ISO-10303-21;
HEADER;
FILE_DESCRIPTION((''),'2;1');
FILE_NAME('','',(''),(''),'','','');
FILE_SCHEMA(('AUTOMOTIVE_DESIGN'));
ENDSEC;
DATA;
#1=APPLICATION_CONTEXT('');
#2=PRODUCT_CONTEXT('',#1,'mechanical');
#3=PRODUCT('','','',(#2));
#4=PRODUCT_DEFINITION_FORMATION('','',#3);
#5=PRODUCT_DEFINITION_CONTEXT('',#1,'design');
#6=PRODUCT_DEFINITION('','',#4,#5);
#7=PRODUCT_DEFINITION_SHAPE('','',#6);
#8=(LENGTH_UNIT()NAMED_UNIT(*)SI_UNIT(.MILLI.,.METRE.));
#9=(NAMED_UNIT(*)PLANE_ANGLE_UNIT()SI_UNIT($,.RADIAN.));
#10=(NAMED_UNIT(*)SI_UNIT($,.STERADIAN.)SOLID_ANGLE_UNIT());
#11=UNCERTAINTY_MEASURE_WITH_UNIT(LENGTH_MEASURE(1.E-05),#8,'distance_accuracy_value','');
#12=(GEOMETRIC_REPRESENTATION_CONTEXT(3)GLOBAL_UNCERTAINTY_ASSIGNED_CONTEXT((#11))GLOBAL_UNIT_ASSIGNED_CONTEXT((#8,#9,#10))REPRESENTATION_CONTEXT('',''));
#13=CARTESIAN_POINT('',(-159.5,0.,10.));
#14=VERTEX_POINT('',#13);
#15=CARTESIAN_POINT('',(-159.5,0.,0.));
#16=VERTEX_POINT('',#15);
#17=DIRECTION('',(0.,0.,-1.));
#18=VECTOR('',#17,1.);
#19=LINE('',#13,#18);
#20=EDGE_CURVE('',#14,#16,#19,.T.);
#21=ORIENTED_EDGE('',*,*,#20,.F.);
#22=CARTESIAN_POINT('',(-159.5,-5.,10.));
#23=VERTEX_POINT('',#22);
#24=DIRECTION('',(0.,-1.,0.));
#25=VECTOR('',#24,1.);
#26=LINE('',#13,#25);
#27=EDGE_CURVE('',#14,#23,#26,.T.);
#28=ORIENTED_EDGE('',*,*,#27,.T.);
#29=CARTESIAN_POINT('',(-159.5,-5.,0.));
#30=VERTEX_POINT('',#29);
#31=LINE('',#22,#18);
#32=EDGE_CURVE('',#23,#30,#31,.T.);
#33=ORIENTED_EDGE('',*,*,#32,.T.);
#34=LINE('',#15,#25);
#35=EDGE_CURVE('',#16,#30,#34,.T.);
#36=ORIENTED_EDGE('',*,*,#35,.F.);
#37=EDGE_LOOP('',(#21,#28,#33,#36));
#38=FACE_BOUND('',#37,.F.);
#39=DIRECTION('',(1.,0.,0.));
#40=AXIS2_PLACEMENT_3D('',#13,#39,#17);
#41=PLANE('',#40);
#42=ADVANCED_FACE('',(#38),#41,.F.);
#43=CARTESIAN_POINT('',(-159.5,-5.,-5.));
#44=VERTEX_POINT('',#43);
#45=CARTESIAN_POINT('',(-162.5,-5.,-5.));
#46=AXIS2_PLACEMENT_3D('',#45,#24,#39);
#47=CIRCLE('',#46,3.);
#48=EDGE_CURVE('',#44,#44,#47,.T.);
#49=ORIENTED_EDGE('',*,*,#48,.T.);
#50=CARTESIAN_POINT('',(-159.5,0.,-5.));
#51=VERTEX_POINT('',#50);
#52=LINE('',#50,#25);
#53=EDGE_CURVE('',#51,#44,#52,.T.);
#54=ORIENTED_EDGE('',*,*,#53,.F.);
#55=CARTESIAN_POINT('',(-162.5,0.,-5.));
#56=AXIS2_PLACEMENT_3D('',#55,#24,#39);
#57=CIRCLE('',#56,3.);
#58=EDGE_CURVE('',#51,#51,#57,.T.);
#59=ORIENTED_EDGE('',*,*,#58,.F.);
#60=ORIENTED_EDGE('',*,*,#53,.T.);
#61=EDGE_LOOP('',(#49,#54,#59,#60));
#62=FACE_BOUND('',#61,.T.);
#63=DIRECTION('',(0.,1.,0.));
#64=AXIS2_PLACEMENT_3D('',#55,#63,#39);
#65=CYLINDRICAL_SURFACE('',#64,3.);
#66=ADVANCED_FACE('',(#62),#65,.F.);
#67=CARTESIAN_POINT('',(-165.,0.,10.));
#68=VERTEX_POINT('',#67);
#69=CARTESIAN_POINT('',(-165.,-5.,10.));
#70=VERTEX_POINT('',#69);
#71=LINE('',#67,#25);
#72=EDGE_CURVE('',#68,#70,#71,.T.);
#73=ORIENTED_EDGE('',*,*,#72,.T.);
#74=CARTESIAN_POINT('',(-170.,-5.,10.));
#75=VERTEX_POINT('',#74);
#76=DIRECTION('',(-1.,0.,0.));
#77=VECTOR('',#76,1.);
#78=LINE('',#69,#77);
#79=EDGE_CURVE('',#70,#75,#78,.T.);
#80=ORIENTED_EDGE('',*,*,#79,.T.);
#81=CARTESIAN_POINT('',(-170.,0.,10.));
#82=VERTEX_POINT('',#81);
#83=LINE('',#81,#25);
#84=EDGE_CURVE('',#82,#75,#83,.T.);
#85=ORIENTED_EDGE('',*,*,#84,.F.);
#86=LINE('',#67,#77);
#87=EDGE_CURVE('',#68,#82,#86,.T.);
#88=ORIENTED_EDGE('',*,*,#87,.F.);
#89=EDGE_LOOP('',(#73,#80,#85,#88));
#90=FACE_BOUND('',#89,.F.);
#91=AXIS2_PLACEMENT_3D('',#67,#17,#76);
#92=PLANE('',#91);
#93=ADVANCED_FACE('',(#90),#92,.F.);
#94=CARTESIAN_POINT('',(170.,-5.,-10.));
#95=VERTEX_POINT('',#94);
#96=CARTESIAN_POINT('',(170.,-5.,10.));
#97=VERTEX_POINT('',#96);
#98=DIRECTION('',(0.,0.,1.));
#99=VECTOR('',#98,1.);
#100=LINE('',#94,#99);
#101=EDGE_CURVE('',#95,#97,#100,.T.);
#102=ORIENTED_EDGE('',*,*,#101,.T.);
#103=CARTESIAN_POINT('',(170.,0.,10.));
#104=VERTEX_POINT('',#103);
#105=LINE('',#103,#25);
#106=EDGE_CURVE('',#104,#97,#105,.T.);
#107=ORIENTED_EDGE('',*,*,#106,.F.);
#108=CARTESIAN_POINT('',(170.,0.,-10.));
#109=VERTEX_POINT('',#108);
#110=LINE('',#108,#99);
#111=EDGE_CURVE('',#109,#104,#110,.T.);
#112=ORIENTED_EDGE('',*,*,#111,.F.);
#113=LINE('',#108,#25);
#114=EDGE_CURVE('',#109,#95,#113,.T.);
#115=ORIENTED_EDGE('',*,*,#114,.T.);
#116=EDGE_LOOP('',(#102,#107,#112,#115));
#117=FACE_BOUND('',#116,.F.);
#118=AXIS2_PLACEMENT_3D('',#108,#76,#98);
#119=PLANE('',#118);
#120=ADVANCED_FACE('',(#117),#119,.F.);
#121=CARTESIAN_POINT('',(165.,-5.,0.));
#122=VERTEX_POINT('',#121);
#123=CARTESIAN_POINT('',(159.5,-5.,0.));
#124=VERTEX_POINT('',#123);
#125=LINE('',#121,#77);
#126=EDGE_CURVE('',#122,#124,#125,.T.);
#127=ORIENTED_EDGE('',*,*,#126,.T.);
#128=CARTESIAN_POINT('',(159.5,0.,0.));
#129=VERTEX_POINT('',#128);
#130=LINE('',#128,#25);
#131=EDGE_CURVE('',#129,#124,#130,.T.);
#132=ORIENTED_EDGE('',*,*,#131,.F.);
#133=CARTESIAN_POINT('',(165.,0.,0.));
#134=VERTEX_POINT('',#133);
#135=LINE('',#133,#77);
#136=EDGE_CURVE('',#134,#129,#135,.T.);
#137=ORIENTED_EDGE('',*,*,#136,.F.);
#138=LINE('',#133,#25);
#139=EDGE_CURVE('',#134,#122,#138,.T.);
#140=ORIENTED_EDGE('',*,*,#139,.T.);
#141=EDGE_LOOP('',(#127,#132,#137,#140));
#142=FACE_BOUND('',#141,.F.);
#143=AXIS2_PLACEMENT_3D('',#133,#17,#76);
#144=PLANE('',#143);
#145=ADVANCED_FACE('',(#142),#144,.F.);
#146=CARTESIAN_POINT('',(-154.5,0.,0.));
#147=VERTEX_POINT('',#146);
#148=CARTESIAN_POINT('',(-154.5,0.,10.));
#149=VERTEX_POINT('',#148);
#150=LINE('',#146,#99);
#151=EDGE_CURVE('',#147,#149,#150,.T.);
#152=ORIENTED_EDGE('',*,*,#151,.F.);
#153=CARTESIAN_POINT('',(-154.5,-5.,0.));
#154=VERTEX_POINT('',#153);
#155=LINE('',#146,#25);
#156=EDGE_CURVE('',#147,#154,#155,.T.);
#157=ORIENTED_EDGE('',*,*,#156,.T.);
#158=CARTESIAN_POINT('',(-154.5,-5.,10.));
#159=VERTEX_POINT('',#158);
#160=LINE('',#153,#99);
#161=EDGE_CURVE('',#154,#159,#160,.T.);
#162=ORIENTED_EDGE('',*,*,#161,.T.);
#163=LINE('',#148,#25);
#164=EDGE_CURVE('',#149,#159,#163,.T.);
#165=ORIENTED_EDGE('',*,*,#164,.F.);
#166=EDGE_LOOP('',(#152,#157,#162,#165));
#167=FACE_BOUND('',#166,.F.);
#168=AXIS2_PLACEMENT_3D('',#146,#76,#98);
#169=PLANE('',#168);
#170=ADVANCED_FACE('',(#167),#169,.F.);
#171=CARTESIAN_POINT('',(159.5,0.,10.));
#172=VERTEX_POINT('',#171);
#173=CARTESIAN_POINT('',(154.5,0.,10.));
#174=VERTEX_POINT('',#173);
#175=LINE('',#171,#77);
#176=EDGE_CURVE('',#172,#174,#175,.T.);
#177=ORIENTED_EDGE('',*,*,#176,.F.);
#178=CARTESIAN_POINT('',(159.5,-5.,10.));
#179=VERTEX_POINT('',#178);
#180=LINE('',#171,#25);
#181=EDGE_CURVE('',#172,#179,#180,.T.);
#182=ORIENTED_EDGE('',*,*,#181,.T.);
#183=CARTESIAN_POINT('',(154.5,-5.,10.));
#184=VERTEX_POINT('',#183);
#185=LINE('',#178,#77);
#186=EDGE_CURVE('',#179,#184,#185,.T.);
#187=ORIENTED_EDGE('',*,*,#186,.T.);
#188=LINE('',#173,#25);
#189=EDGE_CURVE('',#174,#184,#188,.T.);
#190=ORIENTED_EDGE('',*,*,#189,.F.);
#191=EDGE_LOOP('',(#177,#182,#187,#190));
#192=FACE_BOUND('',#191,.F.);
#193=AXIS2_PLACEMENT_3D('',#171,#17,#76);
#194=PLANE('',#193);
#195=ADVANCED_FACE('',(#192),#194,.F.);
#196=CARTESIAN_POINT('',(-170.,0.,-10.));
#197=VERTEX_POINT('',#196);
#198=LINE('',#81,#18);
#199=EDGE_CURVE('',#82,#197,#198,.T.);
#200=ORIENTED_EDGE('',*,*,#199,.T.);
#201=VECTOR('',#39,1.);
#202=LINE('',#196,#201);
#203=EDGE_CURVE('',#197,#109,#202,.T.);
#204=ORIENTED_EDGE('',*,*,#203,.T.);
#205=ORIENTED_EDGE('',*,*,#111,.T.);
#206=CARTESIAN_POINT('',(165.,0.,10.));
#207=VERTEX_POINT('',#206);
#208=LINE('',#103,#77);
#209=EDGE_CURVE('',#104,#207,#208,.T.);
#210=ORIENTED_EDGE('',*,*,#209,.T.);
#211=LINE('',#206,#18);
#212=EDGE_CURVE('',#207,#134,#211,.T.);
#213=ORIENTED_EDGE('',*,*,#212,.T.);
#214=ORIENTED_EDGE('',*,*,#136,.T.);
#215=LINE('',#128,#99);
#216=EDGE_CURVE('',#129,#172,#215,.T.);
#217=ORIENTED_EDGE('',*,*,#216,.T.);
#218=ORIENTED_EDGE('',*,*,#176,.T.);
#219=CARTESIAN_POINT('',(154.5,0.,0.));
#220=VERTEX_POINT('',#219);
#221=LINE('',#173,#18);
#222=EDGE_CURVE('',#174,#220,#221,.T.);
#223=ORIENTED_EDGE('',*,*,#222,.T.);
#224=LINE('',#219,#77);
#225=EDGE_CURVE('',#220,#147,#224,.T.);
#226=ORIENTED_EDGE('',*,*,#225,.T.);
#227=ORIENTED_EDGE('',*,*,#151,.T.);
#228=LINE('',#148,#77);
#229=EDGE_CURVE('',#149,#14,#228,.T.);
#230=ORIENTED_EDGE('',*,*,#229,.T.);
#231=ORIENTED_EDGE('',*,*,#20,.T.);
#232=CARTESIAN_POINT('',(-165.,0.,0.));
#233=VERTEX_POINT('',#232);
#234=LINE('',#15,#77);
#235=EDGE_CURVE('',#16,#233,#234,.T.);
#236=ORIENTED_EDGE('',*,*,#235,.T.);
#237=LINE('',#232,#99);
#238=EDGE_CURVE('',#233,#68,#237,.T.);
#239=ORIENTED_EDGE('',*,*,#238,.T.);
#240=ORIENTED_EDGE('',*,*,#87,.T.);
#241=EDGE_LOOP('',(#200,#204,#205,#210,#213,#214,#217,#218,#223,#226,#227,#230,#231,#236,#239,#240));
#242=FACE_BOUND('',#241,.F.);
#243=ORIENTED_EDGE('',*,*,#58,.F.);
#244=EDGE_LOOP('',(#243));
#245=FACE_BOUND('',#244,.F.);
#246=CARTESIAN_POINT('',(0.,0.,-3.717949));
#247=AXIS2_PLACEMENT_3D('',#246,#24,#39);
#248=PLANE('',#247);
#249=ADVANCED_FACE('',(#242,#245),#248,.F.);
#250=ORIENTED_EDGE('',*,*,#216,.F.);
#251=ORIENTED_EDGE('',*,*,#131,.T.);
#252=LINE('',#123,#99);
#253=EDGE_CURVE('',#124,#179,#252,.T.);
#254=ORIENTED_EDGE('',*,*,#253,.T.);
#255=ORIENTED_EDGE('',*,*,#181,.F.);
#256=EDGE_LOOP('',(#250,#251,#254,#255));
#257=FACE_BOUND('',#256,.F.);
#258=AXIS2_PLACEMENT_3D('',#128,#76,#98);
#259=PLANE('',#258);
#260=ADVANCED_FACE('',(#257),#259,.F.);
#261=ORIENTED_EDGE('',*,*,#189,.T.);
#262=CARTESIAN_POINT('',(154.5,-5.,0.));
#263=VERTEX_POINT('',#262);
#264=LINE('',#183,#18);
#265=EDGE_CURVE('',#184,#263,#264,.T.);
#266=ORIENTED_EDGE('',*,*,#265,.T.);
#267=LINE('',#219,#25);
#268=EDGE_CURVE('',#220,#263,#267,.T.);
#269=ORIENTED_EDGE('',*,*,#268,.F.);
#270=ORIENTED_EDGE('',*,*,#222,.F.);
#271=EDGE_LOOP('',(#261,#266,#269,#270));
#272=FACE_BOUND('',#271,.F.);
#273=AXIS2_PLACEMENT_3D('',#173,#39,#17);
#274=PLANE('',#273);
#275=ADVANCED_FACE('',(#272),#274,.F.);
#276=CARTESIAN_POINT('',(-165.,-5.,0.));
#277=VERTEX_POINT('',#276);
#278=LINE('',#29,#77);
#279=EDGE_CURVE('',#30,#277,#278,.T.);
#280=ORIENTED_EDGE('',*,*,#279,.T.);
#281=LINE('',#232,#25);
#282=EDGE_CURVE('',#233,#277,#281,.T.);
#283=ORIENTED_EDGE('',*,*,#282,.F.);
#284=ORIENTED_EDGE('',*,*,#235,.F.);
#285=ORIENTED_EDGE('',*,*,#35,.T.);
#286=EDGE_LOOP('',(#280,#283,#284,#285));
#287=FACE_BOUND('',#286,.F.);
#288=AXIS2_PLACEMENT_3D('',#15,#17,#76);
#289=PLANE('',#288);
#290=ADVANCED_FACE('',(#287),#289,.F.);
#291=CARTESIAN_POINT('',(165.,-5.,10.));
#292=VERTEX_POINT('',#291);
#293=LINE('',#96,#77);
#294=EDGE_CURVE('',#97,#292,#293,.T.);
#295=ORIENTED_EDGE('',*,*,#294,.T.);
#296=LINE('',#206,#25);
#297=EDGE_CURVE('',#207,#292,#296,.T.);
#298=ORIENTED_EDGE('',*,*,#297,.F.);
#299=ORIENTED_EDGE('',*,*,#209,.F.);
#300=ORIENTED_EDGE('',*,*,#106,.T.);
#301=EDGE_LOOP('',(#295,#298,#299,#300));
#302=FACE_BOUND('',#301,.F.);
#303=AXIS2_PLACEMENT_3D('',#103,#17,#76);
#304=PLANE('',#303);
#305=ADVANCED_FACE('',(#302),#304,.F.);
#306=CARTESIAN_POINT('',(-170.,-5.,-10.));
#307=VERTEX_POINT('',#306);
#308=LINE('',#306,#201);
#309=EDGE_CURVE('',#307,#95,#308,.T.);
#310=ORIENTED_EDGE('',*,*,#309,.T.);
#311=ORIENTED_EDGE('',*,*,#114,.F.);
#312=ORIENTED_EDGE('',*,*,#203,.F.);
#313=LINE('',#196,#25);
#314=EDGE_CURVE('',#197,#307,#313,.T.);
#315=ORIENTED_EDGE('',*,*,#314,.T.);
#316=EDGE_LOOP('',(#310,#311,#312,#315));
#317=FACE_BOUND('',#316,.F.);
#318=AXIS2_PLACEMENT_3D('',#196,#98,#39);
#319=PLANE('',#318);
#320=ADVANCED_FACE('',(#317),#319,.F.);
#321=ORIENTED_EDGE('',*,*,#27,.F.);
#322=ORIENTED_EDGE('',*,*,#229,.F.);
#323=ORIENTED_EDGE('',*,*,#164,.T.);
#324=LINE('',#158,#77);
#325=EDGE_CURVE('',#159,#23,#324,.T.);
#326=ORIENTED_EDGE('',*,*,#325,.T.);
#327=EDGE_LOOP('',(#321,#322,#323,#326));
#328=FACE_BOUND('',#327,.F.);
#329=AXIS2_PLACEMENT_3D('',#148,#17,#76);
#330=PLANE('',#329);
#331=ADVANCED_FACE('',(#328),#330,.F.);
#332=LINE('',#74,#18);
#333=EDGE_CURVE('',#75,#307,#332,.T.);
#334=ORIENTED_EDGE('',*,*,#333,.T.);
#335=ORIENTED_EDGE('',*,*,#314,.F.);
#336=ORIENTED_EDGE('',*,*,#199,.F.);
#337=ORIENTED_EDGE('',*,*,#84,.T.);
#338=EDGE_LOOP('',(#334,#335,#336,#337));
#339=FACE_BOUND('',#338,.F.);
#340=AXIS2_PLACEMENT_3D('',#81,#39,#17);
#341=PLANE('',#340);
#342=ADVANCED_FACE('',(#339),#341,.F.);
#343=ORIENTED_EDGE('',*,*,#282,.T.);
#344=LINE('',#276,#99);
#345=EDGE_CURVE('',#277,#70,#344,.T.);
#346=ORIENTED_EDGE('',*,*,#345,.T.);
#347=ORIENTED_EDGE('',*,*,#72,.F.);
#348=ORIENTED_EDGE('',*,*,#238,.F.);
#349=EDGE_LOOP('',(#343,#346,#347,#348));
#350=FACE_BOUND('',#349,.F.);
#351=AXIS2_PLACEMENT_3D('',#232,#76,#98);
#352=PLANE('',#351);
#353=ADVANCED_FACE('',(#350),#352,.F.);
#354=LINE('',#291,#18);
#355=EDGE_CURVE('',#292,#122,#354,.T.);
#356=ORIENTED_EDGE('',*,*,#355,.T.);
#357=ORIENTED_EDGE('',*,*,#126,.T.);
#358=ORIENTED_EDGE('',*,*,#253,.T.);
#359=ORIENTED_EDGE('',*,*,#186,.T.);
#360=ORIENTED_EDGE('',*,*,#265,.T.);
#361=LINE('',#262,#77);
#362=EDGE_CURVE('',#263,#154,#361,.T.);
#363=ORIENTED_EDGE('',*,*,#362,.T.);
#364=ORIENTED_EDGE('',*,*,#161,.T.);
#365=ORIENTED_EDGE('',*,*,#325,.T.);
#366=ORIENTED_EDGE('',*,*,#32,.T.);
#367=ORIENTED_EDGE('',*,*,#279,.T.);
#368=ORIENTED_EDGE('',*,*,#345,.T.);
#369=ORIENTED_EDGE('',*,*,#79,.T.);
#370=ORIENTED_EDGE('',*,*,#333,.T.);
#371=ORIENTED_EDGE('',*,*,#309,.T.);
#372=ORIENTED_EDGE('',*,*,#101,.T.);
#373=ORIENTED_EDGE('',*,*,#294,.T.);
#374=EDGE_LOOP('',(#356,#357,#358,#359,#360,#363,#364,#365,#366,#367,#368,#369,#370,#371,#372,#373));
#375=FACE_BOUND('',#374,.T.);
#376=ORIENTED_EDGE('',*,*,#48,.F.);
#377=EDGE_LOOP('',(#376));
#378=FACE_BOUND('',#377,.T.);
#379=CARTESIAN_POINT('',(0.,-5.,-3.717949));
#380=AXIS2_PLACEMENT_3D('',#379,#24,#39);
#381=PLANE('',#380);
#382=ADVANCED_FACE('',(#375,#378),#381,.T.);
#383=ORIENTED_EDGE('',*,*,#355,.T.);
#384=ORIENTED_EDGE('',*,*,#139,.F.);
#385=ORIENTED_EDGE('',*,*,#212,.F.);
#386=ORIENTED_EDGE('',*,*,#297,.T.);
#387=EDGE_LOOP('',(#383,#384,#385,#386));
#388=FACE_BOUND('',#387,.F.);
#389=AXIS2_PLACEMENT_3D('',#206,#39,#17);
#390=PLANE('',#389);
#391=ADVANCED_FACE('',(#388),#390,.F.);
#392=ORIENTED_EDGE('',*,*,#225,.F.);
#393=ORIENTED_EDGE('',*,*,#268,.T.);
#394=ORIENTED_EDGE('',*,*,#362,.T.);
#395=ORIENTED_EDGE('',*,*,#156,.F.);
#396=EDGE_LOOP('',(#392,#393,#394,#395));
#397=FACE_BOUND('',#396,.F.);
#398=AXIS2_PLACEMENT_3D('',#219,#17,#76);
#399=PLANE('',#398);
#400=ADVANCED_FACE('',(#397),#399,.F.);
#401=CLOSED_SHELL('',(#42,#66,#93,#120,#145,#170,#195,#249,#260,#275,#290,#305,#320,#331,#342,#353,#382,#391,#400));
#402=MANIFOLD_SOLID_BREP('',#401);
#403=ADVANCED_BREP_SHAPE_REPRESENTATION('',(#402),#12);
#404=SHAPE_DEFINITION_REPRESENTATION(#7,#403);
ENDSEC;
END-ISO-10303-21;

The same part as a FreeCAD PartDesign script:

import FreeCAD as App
import Part
import Sketcher
from FreeCAD import Vector


def add_polygon(sketch, points):
    """Adds a closed chain of lines whose ends are joined by coincident constraints."""
    first, n = sketch.GeometryCount, len(points)
    for a, b in zip(points, points[1:] + points[:1]):
        sketch.addGeometry(Part.LineSegment(App.Vector(*a, 0), App.Vector(*b, 0)), False)
    for i in range(n):
        sketch.addConstraint(Sketcher.Constraint("Coincident", first + i, 2, first + (i + 1) % n, 1))

doc = App.newDocument("Part")
body = doc.addObject("PartDesign::Body", "Body")

# Sketch on XZ plane
sketch1 = body.newObject("Sketcher::SketchObject", "Sketch")
sketch1.AttachmentSupport = (doc.getObject("XZ_Plane"), [""])
sketch1.MapMode = "FlatFace"
add_polygon(sketch1, [(-170, -10), (170, -10), (170, 10), (165, 10), (165, 0), (159.5, 0), (159.5, 10), (154.5, 10), (154.5, 0), (-154.5, 0), (-154.5, 10), (-159.5, 10), (-159.5, 0), (-165, 0), (-165, 10), (-170, 10)])  # lines 0-15
sketch1.addGeometry(Part.Circle(Vector(-162.5, -5, 0), Vector(0, 0, 1), 3), False)  # 16
sketch1.addConstraint([
    Sketcher.Constraint("Horizontal", 0),
    Sketcher.Constraint("Vertical", 1),
    Sketcher.Constraint("Horizontal", 2),
    Sketcher.Constraint("Vertical", 3),
    Sketcher.Constraint("Horizontal", 4),
    Sketcher.Constraint("Vertical", 5),
    Sketcher.Constraint("Horizontal", 6),
    Sketcher.Constraint("Vertical", 7),
    Sketcher.Constraint("Horizontal", 8),
    Sketcher.Constraint("Vertical", 9),
    Sketcher.Constraint("Horizontal", 10),
    Sketcher.Constraint("Vertical", 11),
    Sketcher.Constraint("Horizontal", 12),
    Sketcher.Constraint("Vertical", 13),
    Sketcher.Constraint("Horizontal", 14),
    Sketcher.Constraint("Vertical", 15),
    Sketcher.Constraint("Symmetric", 7, 2, 8, 2, -1, 1),
    Sketcher.Constraint("Symmetric", 4, 2, 11, 2, -1, 1),
    Sketcher.Constraint("Symmetric", 0, 2, 14, 2, -1, 1),
    Sketcher.Constraint("Symmetric", 3, 2, 12, 2, -2),
    Sketcher.Constraint("Horizontal", 2, 2, 5, 2),
    Sketcher.Constraint("Horizontal", 6, 2, 9, 2),
    Sketcher.Constraint("Horizontal", 10, 2, 13, 2),
    Sketcher.Constraint("Equal", 2, 6),
    Sketcher.Constraint("Diameter", 16, 6.0),
    Sketcher.Constraint("DistanceX", 0, 1, 0, 2, 340.0),
    Sketcher.Constraint("DistanceX", 2, 2, 2, 1, 5.0),
    Sketcher.Constraint("DistanceX", 8, 2, 8, 1, 309.0),
    Sketcher.Constraint("DistanceY", 1, 1, 1, 2, 20.0),
    Sketcher.Constraint("DistanceY", 16, 3, -1, 1, 5.0),
    Sketcher.Constraint("DistanceX", 16, 3, 4, 2, 322.0),
])
pad1 = body.newObject("PartDesign::Pad", "Pad")
pad1.Profile = sketch1
pad1.Length = 5

doc.recompute()
